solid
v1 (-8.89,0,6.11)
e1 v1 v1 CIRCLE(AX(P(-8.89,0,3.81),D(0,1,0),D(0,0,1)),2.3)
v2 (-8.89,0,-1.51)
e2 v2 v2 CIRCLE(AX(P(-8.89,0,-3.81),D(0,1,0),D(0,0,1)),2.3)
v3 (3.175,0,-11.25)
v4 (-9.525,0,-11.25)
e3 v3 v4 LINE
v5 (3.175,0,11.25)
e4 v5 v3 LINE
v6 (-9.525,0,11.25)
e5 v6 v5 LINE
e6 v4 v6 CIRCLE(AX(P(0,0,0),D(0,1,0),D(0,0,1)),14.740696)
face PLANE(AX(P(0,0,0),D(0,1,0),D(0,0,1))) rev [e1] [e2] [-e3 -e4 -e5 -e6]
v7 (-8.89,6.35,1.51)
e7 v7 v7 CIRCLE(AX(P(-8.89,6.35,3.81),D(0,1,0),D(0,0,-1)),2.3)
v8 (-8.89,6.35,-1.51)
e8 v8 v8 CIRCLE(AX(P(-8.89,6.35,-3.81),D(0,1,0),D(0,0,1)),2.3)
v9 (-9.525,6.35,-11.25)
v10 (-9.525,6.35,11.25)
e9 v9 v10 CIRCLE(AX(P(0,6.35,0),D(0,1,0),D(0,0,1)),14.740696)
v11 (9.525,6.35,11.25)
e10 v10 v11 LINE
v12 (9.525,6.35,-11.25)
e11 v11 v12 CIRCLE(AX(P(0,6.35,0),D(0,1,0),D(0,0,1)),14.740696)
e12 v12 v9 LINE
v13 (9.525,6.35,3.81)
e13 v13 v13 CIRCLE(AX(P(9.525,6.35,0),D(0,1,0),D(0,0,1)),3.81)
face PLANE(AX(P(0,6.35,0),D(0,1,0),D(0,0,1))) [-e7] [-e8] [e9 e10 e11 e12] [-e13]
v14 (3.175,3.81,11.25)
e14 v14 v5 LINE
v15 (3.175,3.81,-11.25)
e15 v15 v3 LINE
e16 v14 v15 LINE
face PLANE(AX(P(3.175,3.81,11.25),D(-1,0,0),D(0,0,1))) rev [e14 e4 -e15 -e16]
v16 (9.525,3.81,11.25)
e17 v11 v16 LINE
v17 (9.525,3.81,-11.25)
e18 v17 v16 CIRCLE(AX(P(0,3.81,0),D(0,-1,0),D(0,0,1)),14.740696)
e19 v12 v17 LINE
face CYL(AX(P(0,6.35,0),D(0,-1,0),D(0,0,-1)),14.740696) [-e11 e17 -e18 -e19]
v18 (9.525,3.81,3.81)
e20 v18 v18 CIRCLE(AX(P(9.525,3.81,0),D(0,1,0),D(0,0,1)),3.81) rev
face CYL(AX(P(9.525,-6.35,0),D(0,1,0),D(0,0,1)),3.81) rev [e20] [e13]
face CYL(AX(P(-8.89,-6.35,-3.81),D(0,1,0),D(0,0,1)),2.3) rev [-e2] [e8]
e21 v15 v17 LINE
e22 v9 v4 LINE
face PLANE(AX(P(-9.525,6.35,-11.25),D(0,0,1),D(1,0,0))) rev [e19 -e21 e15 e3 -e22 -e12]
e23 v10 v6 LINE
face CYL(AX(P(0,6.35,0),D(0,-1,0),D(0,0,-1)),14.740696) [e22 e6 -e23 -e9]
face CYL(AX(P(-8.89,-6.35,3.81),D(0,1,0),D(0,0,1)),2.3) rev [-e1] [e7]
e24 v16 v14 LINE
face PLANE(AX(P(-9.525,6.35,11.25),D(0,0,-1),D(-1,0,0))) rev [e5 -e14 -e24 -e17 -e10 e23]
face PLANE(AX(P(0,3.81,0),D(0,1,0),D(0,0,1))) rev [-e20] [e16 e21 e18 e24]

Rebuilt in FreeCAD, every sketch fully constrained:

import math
import FreeCAD as App
import Part
import Sketcher
Q = App.Units.Quantity

doc = App.newDocument("Part")
body = doc.addObject("PartDesign::Body", "Body")

sketch1 = doc.addObject("Sketcher::SketchObject", "Sketch")
body.addObject(sketch1)
sketch1.AttachmentSupport = (doc.XZ_Plane, [""])
sketch1.MapMode = "FlatFace"
sketch1.addGeometry(Part.LineSegment(App.Vector(9.525, -11.25, 0), App.Vector(-9.525, -11.25, 0)), False)
sketch1.addGeometry(Part.ArcOfCircle(Part.Circle(App.Vector(0, 0, 0), App.Vector(0, 0, 1), 14.740696), math.radians(130.253477), math.radians(229.746523)), False)
sketch1.addGeometry(Part.LineSegment(App.Vector(-9.525, 11.25, 0), App.Vector(9.525, 11.25, 0)), False)
sketch1.addGeometry(Part.ArcOfCircle(Part.Circle(App.Vector(0, 0, 0), App.Vector(0, 0, 1), 14.740696), math.radians(-49.746523), math.radians(49.746523)), False)
sketch1.addConstraint(Sketcher.Constraint("Coincident", 0, 2, 1, 2))
sketch1.addConstraint(Sketcher.Constraint("Coincident", 1, 1, 2, 1))
sketch1.addConstraint(Sketcher.Constraint("Coincident", 2, 2, 3, 2))
sketch1.addConstraint(Sketcher.Constraint("Coincident", 3, 1, 0, 1))
sketch1.addConstraint(Sketcher.Constraint("Horizontal", 0))
sketch1.addConstraint(Sketcher.Constraint("Horizontal", 2))
sketch1.addConstraint(Sketcher.Constraint("Coincident", 1, 3, -1, 1))
sketch1.addConstraint(Sketcher.Constraint("Coincident", 3, 3, -1, 1))
sketch1.addConstraint(Sketcher.Constraint("Equal", 1, 3))
sketch1.addConstraint(Sketcher.Constraint("Vertical", 0, 2, 1, 1))
sketch1.addConstraint(Sketcher.Constraint("DistanceX", 0, 2, 0, 1, Q("0.75 in")))
sketch1.addConstraint(Sketcher.Constraint("Radius", 1, 14.740696))
pad1 = doc.addObject("PartDesign::Pad", "Pad")
body.addObject(pad1)
pad1.Profile = sketch1
pad1.Length = Q("0.25 in")
pad1.Reversed = True

sketch2 = doc.addObject("Sketcher::SketchObject", "Sketch001")
body.addObject(sketch2)
sketch2.AttachmentSupport = (doc.XZ_Plane, [""])
sketch2.MapMode = "FlatFace"
sketch2.AttachmentOffset = App.Placement(App.Vector(0, 0, -0.25 * 25.4), App.Rotation())
sketch2.addGeometry(Part.Circle(App.Vector(-8.89, -3.81, 0), App.Vector(0, 0, 1), 2.3), False)
sketch2.addGeometry(Part.Circle(App.Vector(-8.89, 3.81, 0), App.Vector(0, 0, 1), 2.3), False)
sketch2.addGeometry(Part.Circle(App.Vector(9.525, 0, 0), App.Vector(0, 0, 1), 3.81), False)
sketch2.addConstraint(Sketcher.Constraint("Equal", 0, 1))
sketch2.addConstraint(Sketcher.Constraint("Symmetric", 0, 3, 1, 3, -1))
sketch2.addConstraint(Sketcher.Constraint("PointOnObject", 2, 3, -1))
sketch2.addConstraint(Sketcher.Constraint("Diameter", 2, Q("0.3 in")))
sketch2.addConstraint(Sketcher.Constraint("DistanceY", 0, 3, 1, 3, Q("0.3 in")))
sketch2.addConstraint(Sketcher.Constraint("Diameter", 0, 4.6))
sketch2.addConstraint(Sketcher.Constraint("DistanceX", 0, 3, -1, 1, Q("0.35 in")))
sketch2.addConstraint(Sketcher.Constraint("DistanceX", -1, 1, 2, 3, Q("0.375 in")))
pocket1 = doc.addObject("PartDesign::Pocket", "Pocket")
body.addObject(pocket1)
pocket1.Profile = sketch2
pocket1.Length = Q("0.5 in")
pocket1.Reversed = True

sketch3 = doc.addObject("Sketcher::SketchObject", "Sketch002")
body.addObject(sketch3)
sketch3.AttachmentSupport = (doc.XZ_Plane, [""])
sketch3.MapMode = "FlatFace"
sketch3.addGeometry(Part.LineSegment(App.Vector(9.525, 11.25, 0), App.Vector(3.175, 11.25, 0)), False)
sketch3.addGeometry(Part.LineSegment(App.Vector(3.175, 11.25, 0), App.Vector(3.175, -11.25, 0)), False)
sketch3.addGeometry(Part.LineSegment(App.Vector(3.175, -11.25, 0), App.Vector(9.525, -11.25, 0)), False)
sketch3.addGeometry(Part.ArcOfCircle(Part.Circle(App.Vector(0, 0, 0), App.Vector(0, 0, 1), 14.740696), math.radians(-49.746523), math.radians(49.746523)), False)
sketch3.addConstraint(Sketcher.Constraint("Coincident", 0, 2, 1, 1))
sketch3.addConstraint(Sketcher.Constraint("Coincident", 1, 2, 2, 1))
sketch3.addConstraint(Sketcher.Constraint("Coincident", 2, 2, 3, 1))
sketch3.addConstraint(Sketcher.Constraint("Coincident", 3, 2, 0, 1))
sketch3.addConstraint(Sketcher.Constraint("Horizontal", 0))
sketch3.addConstraint(Sketcher.Constraint("Vertical", 1))
sketch3.addConstraint(Sketcher.Constraint("Horizontal", 2))
sketch3.addConstraint(Sketcher.Constraint("Coincident", 3, 3, -1, 1))
sketch3.addConstraint(Sketcher.Constraint("Vertical", 2, 2, 3, 2))
sketch3.addConstraint(Sketcher.Constraint("DistanceX", 0, 2, 0, 1, Q("0.25 in")))
sketch3.addConstraint(Sketcher.Constraint("DistanceX", -1, 1, 0, 2, Q("0.125 in")))
sketch3.addConstraint(Sketcher.Constraint("DistanceY", 1, 2, 1, 1, 22.5))
pocket2 = doc.addObject("PartDesign::Pocket", "Pocket001")
body.addObject(pocket2)
pocket2.Profile = sketch3
pocket2.Length = Q("0.15 in")

doc.recompute()
